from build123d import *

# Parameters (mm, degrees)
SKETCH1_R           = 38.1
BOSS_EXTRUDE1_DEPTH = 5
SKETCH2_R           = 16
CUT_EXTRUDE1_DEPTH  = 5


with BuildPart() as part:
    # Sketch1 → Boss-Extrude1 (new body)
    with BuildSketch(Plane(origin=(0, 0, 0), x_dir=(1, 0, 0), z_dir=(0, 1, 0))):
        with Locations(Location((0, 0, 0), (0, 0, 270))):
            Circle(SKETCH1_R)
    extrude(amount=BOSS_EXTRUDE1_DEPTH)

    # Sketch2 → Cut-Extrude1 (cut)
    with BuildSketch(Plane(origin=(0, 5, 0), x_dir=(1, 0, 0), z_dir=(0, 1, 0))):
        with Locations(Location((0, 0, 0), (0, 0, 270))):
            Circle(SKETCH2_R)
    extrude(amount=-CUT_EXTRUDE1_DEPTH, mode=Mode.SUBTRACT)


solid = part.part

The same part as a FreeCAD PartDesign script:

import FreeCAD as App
import Part
import Sketcher
from FreeCAD import Vector
Q = App.Units.Quantity

doc = App.newDocument("Part")
body = doc.addObject("PartDesign::Body", "Body")

sketch1 = doc.addObject("Sketcher::SketchObject", "Sketch")
body.addObject(sketch1)
sketch1.AttachmentSupport = (doc.XZ_Plane, [""])
sketch1.MapMode = "FlatFace"
sketch1.addGeometry(Part.Circle(Vector(0, 0, 0), Vector(0, 0, 1), 38), False)
sketch1.addConstraint([
    Sketcher.Constraint("Coincident", 0, 3, -1, 1),
    Sketcher.Constraint("Diameter", 0, Q("76.2 mm")),
])
pad1 = doc.addObject("PartDesign::Pad", "Pad")
body.addObject(pad1)
pad1.Profile = sketch1
pad1.Length = 5
pad1.Reversed = True

sketch2 = doc.addObject("Sketcher::SketchObject", "Sketch001")
body.addObject(sketch2)
sketch2.AttachmentSupport = (doc.XZ_Plane, [""])
sketch2.MapMode = "FlatFace"
sketch2.AttachmentOffset = App.Placement(Vector(0, 0, -5), App.Rotation())
sketch2.addGeometry(Part.Circle(Vector(0, 0, 0), Vector(0, 0, 1), 16), False)
sketch2.addConstraint([
    Sketcher.Constraint("Coincident", 0, 3, -1, 1),
    Sketcher.Constraint("Diameter", 0, Q("32 mm")),
])
pocket1 = doc.addObject("PartDesign::Pocket", "Pocket")
body.addObject(pocket1)
pocket1.Profile = sketch2
pocket1.Length = 5
pocket1.Reversed = True

doc.recompute()
